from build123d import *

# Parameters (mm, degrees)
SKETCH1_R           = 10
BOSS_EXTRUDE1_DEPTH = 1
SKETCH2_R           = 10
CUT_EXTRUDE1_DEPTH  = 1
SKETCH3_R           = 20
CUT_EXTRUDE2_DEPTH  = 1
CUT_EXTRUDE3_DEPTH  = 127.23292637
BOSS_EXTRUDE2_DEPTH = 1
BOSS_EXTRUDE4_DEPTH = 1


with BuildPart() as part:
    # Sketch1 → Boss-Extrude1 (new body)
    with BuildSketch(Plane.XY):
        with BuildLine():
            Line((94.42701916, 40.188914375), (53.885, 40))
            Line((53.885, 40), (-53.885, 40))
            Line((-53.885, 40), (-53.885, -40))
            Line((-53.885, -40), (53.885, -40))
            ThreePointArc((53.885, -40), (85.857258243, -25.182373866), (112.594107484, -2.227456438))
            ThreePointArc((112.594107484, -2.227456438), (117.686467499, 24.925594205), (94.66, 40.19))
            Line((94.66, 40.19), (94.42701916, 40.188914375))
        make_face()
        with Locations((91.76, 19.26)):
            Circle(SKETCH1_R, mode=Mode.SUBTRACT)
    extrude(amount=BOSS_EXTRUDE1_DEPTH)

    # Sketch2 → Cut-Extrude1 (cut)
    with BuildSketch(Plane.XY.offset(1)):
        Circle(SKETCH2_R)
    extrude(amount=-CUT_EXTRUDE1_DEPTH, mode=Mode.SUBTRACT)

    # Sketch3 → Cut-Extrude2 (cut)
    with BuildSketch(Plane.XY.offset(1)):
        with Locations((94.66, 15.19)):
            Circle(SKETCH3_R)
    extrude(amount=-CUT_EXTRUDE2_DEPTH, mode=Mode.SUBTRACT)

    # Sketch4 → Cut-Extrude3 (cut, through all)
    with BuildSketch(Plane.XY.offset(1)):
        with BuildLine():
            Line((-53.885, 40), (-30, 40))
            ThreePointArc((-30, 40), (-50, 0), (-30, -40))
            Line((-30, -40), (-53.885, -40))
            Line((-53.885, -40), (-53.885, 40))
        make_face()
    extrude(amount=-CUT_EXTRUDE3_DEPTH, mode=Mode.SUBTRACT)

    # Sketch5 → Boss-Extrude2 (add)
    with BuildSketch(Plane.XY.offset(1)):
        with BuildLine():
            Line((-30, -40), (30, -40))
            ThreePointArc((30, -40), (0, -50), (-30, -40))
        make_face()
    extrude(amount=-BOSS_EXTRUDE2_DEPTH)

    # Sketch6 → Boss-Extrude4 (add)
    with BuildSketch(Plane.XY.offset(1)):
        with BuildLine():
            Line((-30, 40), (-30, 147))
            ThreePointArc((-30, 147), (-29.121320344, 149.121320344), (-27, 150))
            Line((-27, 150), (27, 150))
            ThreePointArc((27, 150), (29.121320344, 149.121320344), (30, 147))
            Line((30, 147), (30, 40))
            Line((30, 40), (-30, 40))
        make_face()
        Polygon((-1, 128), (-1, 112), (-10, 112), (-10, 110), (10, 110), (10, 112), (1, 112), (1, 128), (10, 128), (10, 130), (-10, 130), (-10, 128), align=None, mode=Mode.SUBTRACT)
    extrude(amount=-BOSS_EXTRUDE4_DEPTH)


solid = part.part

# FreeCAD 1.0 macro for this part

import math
import FreeCAD as App
import Part
import Sketcher

V = App.Vector


def add_polygon(sketch, points):
    """Adds a closed chain of lines whose ends are joined by coincident constraints."""
    first, n = sketch.GeometryCount, len(points)
    for a, b in zip(points, points[1:] + points[:1]):
        sketch.addGeometry(Part.LineSegment(App.Vector(*a, 0), App.Vector(*b, 0)), False)
    for i in range(n):
        sketch.addConstraint(Sketcher.Constraint("Coincident", first + i, 2, first + (i + 1) % n, 1))

doc = App.newDocument("Part")
body = doc.addObject("PartDesign::Body", "Body")

sketch1 = body.newObject("Sketcher::SketchObject", "Sketch")
sketch1.AttachmentSupport = (doc.getObject("XY_Plane"), [""])
sketch1.MapMode = "FlatFace"
sketch1.addGeometry(Part.LineSegment(V(94.43, 40.19, 0), V(53.88, 40, 0)), False)
sketch1.addGeometry(Part.LineSegment(V(53.88, 40, 0), V(-53.88, 40, 0)), False)
sketch1.addGeometry(Part.LineSegment(V(-53.88, 40, 0), V(-53.88, -40, 0)), False)
sketch1.addGeometry(Part.LineSegment(V(-53.88, -40, 0), V(53.88, -40, 0)), False)
sketch1.addGeometry(Part.ArcOfCircle(Part.Circle(V(16.42, 82.75, 0), V(0, 0, 1), 128.34), math.radians(-73), math.radians(-41)), False)
sketch1.addGeometry(Part.ArcOfCircle(Part.Circle(V(94.66, 15.19, 0), V(0, 0, 1), 25), math.radians(-44), math.radians(90)), False)
sketch1.addGeometry(Part.LineSegment(V(94.66, 40.19, 0), V(94.43, 40.19, 0)), False)
sketch1.addGeometry(Part.Circle(V(91.76, 19.26, 0), V(0, 0, 1), 10), False)
sketch1.addConstraint(Sketcher.Constraint("Coincident", 0, 2, 1, 1))
sketch1.addConstraint(Sketcher.Constraint("Coincident", 1, 2, 2, 1))
sketch1.addConstraint(Sketcher.Constraint("Coincident", 2, 2, 3, 1))
sketch1.addConstraint(Sketcher.Constraint("Coincident", 3, 2, 4, 1))
sketch1.addConstraint(Sketcher.Constraint("Coincident", 4, 2, 5, 1))
sketch1.addConstraint(Sketcher.Constraint("Coincident", 5, 2, 6, 1))
sketch1.addConstraint(Sketcher.Constraint("Coincident", 6, 2, 0, 1))
sketch1.addConstraint(Sketcher.Constraint("Horizontal", 1))
sketch1.addConstraint(Sketcher.Constraint("Vertical", 2))
sketch1.addConstraint(Sketcher.Constraint("Horizontal", 3))
sketch1.addConstraint(Sketcher.Constraint("Symmetric", 0, 2, 2, 2, -1, 1))
sketch1.addConstraint(Sketcher.Constraint("Parallel", 0, 6))
sketch1.addConstraint(Sketcher.Constraint("Vertical", 0, 2, 3, 2))
sketch1.addConstraint(Sketcher.Constraint("Diameter", 7, 20.0))
sketch1.addConstraint(Sketcher.Constraint("Radius", 5, 25.0))
sketch1.addConstraint(Sketcher.Constraint("DistanceY", 2, 2, 2, 1, 80.0))
sketch1.addConstraint(Sketcher.Constraint("DistanceX", 1, 2, 1, 1, 107.77))
sketch1.addConstraint(Sketcher.Constraint("DistanceX", 7, 3, 5, 3, 2.9))
sketch1.addConstraint(Sketcher.Constraint("DistanceX", 7, 3, 5, 2, 2.9))
sketch1.addConstraint(Sketcher.Constraint("DistanceX", -1, 1, 5, 3, 94.66))
sketch1.addConstraint(Sketcher.Constraint("DistanceY", -1, 1, 5, 3, 15.19))
sketch1.addConstraint(Sketcher.Constraint("DistanceY", -1, 1, 7, 3, 19.26))
sketch1.addConstraint(Sketcher.Constraint("Radius", 4, 128.33682))
sketch1.addConstraint(Sketcher.Constraint("Distance", 0, 40.542459))
sketch1.addConstraint(Sketcher.Constraint("DistanceX", 6, 2, 4, 2, 18.167088))
pad1 = body.newObject("PartDesign::Pad", "Pad")
pad1.Profile = sketch1
pad1.Length = 1

sketch2 = body.newObject("Sketcher::SketchObject", "Sketch001")
sketch2.AttachmentSupport = (doc.getObject("XY_Plane"), [""])
sketch2.MapMode = "FlatFace"
sketch2.AttachmentOffset = App.Placement(V(0, 0, 1), App.Rotation())
sketch2.addGeometry(Part.Circle(V(0, 0, 0), V(0, 0, 1), 10), False)
sketch2.addConstraint(Sketcher.Constraint("Coincident", 0, 3, -1, 1))
sketch2.addConstraint(Sketcher.Constraint("Diameter", 0, 20.0))
pocket1 = body.newObject("PartDesign::Pocket", "Pocket")
pocket1.Profile = sketch2
pocket1.Length = 1

sketch3 = body.newObject("Sketcher::SketchObject", "Sketch002")
sketch3.AttachmentSupport = (doc.getObject("XY_Plane"), [""])
sketch3.MapMode = "FlatFace"
sketch3.AttachmentOffset = App.Placement(V(0, 0, 1), App.Rotation())
sketch3.addGeometry(Part.Circle(V(95, 15, 0), V(0, 0, 1), 20), False)
sketch3.addConstraint(Sketcher.Constraint("Diameter", 0, 40.0))
sketch3.addConstraint(Sketcher.Constraint("DistanceX", -1, 1, 0, 3, 94.66))
sketch3.addConstraint(Sketcher.Constraint("DistanceY", -1, 1, 0, 3, 15.19))
pocket2 = body.newObject("PartDesign::Pocket", "Pocket001")
pocket2.Profile = sketch3
pocket2.Length = 1

sketch4 = body.newObject("Sketcher::SketchObject", "Sketch003")
sketch4.AttachmentSupport = (doc.getObject("XY_Plane"), [""])
sketch4.MapMode = "FlatFace"
sketch4.AttachmentOffset = App.Placement(V(0, 0, 1), App.Rotation())
sketch4.addGeometry(Part.LineSegment(V(-30, 40, 0), V(-54, 40, 0)), False)
sketch4.addGeometry(Part.LineSegment(V(-54, 40, 0), V(-54, -40, 0)), False)
sketch4.addGeometry(Part.LineSegment(V(-54, -40, 0), V(-30, -40, 0)), False)
sketch4.addGeometry(Part.ArcOfCircle(Part.Circle(V(0, 0, 0), V(0, 0, 1), 50), math.radians(127), math.radians(233)), False)
sketch4.addConstraint(Sketcher.Constraint("Coincident", 0, 2, 1, 1))
sketch4.addConstraint(Sketcher.Constraint("Coincident", 1, 2, 2, 1))
sketch4.addConstraint(Sketcher.Constraint("Coincident", 2, 2, 3, 2))
sketch4.addConstraint(Sketcher.Constraint("Coincident", 3, 1, 0, 1))
sketch4.addConstraint(Sketcher.Constraint("Horizontal", 0))
sketch4.addConstraint(Sketcher.Constraint("Vertical", 1))
sketch4.addConstraint(Sketcher.Constraint("Horizontal", 2))
sketch4.addConstraint(Sketcher.Constraint("Coincident", 3, 3, -1, 1))
sketch4.addConstraint(Sketcher.Constraint("Vertical", 2, 2, 3, 1))
sketch4.addConstraint(Sketcher.Constraint("Radius", 3, 50.0))
sketch4.addConstraint(Sketcher.Constraint("DistanceY", 1, 2, 1, 1, 80.0))
sketch4.addConstraint(Sketcher.Constraint("DistanceX", 0, 2, 0, 1, 23.885))
pocket3 = body.newObject("PartDesign::Pocket", "Pocket002")
pocket3.Profile = sketch4
pocket3.Type = "ThroughAll"

sketch5 = body.newObject("Sketcher::SketchObject", "Sketch004")
sketch5.AttachmentSupport = (doc.getObject("XY_Plane"), [""])
sketch5.MapMode = "FlatFace"
sketch5.AttachmentOffset = App.Placement(V(0, 0, 1), App.Rotation())
sketch5.addGeometry(Part.LineSegment(V(30, -40, 0), V(-30, -40, 0)), False)
sketch5.addGeometry(Part.ArcOfCircle(Part.Circle(V(0, 0, 0), V(0, 0, 1), 50), math.radians(-127), math.radians(-53)), False)
sketch5.addConstraint(Sketcher.Constraint("Coincident", 0, 1, 1, 2))
sketch5.addConstraint(Sketcher.Constraint("Coincident", 1, 1, 0, 2))
sketch5.addConstraint(Sketcher.Constraint("Horizontal", 0))
sketch5.addConstraint(Sketcher.Constraint("Coincident", 1, 3, -1, 1))
sketch5.addConstraint(Sketcher.Constraint("Radius", 1, 50.0))
sketch5.addConstraint(Sketcher.Constraint("DistanceX", 0, 2, 0, 1, 60.0))
pad2 = body.newObject("PartDesign::Pad", "Pad001")
pad2.Profile = sketch5
pad2.Length = 1
pad2.Reversed = True

sketch6 = body.newObject("Sketcher::SketchObject", "Sketch005")
sketch6.AttachmentSupport = (doc.getObject("XY_Plane"), [""])
sketch6.MapMode = "FlatFace"
sketch6.AttachmentOffset = App.Placement(V(0, 0, 1), App.Rotation())
sketch6.addGeometry(Part.LineSegment(V(-30, 147, 0), V(-30, 40, 0)), False)
sketch6.addGeometry(Part.LineSegment(V(-30, 40, 0), V(30, 40, 0)), False)
sketch6.addGeometry(Part.LineSegment(V(30, 40, 0), V(30, 147, 0)), False)
sketch6.addGeometry(Part.ArcOfCircle(Part.Circle(V(27, 147, 0), V(0, 0, 1), 3), math.radians(0), math.radians(90)), False)
sketch6.addGeometry(Part.LineSegment(V(27, 150, 0), V(-27, 150, 0)), False)
sketch6.addGeometry(Part.ArcOfCircle(Part.Circle(V(-27, 147, 0), V(0, 0, 1), 3), math.radians(90), math.radians(180)), False)
add_polygon(sketch6, [(-1, 128), (-10, 128), (-10, 130), (10, 130), (10, 128), (1, 128), (1, 112), (10, 112), (10, 110), (-10, 110), (-10, 112), (-1, 112)])
sketch6.addConstraint(Sketcher.Constraint("Coincident", 0, 2, 1, 1))
sketch6.addConstraint(Sketcher.Constraint("Coincident", 1, 2, 2, 1))
sketch6.addConstraint(Sketcher.Constraint("Tangent", 2, 2, 3, 1))
sketch6.addConstraint(Sketcher.Constraint("Tangent", 3, 2, 4, 1))
sketch6.addConstraint(Sketcher.Constraint("Tangent", 4, 2, 5, 1))
sketch6.addConstraint(Sketcher.Constraint("Tangent", 5, 2, 0, 1))
sketch6.addConstraint(Sketcher.Constraint("Vertical", 0))
sketch6.addConstraint(Sketcher.Constraint("Horizontal", 1))
sketch6.addConstraint(Sketcher.Constraint("Vertical", 2))
sketch6.addConstraint(Sketcher.Constraint("Horizontal", 4))
sketch6.addConstraint(Sketcher.Constraint("Horizontal", 6))
sketch6.addConstraint(Sketcher.Constraint("Vertical", 7))
sketch6.addConstraint(Sketcher.Constraint("Horizontal", 8))
sketch6.addConstraint(Sketcher.Constraint("Vertical", 9))
sketch6.addConstraint(Sketcher.Constraint("Horizontal", 10))
sketch6.addConstraint(Sketcher.Constraint("Vertical", 11))
sketch6.addConstraint(Sketcher.Constraint("Horizontal", 12))
sketch6.addConstraint(Sketcher.Constraint("Vertical", 13))
sketch6.addConstraint(Sketcher.Constraint("Horizontal", 14))
sketch6.addConstraint(Sketcher.Constraint("Vertical", 15))
sketch6.addConstraint(Sketcher.Constraint("Horizontal", 16))
sketch6.addConstraint(Sketcher.Constraint("Vertical", 17))
sketch6.addConstraint(Sketcher.Constraint("Equal", 3, 5))
sketch6.addConstraint(Sketcher.Constraint("Symmetric", 6, 2, 9, 2, -2))
sketch6.addConstraint(Sketcher.Constraint("Symmetric", 12, 2, 15, 2, -2))
sketch6.addConstraint(Sketcher.Constraint("Vertical", 9, 2, 12, 2))
sketch6.addConstraint(Sketcher.Constraint("Equal", 6, 10))
sketch6.addConstraint(Sketcher.Constraint("Equal", 9, 13))
sketch6.addConstraint(Sketcher.Constraint("Radius", 3, 3.0))
sketch6.addConstraint(Sketcher.Constraint("DistanceX", 1, 1, 1, 2, 60.0))
sketch6.addConstraint(Sketcher.Constraint("DistanceX", 6, 2, 6, 1, 9.0))
sketch6.addConstraint(Sketcher.Constraint("DistanceX", 8, 1, 8, 2, 20.0))
sketch6.addConstraint(Sketcher.Constraint("DistanceY", 0, 2, 0, 1, 107.0))
sketch6.addConstraint(Sketcher.Constraint("DistanceY", 7, 1, 7, 2, 2.0))
sketch6.addConstraint(Sketcher.Constraint("DistanceY", 11, 2, 11, 1, 16.0))
sketch6.addConstraint(Sketcher.Constraint("DistanceX", -1, 1, 3, 3, 27.0))
sketch6.addConstraint(Sketcher.Constraint("DistanceY", -1, 1, 3, 3, 147.0))
sketch6.addConstraint(Sketcher.Constraint("DistanceY", -1, 1, 6, 2, 128.0))
pad3 = body.newObject("PartDesign::Pad", "Pad002")
pad3.Profile = sketch6
pad3.Length = 1
pad3.Reversed = True

doc.recompute()
